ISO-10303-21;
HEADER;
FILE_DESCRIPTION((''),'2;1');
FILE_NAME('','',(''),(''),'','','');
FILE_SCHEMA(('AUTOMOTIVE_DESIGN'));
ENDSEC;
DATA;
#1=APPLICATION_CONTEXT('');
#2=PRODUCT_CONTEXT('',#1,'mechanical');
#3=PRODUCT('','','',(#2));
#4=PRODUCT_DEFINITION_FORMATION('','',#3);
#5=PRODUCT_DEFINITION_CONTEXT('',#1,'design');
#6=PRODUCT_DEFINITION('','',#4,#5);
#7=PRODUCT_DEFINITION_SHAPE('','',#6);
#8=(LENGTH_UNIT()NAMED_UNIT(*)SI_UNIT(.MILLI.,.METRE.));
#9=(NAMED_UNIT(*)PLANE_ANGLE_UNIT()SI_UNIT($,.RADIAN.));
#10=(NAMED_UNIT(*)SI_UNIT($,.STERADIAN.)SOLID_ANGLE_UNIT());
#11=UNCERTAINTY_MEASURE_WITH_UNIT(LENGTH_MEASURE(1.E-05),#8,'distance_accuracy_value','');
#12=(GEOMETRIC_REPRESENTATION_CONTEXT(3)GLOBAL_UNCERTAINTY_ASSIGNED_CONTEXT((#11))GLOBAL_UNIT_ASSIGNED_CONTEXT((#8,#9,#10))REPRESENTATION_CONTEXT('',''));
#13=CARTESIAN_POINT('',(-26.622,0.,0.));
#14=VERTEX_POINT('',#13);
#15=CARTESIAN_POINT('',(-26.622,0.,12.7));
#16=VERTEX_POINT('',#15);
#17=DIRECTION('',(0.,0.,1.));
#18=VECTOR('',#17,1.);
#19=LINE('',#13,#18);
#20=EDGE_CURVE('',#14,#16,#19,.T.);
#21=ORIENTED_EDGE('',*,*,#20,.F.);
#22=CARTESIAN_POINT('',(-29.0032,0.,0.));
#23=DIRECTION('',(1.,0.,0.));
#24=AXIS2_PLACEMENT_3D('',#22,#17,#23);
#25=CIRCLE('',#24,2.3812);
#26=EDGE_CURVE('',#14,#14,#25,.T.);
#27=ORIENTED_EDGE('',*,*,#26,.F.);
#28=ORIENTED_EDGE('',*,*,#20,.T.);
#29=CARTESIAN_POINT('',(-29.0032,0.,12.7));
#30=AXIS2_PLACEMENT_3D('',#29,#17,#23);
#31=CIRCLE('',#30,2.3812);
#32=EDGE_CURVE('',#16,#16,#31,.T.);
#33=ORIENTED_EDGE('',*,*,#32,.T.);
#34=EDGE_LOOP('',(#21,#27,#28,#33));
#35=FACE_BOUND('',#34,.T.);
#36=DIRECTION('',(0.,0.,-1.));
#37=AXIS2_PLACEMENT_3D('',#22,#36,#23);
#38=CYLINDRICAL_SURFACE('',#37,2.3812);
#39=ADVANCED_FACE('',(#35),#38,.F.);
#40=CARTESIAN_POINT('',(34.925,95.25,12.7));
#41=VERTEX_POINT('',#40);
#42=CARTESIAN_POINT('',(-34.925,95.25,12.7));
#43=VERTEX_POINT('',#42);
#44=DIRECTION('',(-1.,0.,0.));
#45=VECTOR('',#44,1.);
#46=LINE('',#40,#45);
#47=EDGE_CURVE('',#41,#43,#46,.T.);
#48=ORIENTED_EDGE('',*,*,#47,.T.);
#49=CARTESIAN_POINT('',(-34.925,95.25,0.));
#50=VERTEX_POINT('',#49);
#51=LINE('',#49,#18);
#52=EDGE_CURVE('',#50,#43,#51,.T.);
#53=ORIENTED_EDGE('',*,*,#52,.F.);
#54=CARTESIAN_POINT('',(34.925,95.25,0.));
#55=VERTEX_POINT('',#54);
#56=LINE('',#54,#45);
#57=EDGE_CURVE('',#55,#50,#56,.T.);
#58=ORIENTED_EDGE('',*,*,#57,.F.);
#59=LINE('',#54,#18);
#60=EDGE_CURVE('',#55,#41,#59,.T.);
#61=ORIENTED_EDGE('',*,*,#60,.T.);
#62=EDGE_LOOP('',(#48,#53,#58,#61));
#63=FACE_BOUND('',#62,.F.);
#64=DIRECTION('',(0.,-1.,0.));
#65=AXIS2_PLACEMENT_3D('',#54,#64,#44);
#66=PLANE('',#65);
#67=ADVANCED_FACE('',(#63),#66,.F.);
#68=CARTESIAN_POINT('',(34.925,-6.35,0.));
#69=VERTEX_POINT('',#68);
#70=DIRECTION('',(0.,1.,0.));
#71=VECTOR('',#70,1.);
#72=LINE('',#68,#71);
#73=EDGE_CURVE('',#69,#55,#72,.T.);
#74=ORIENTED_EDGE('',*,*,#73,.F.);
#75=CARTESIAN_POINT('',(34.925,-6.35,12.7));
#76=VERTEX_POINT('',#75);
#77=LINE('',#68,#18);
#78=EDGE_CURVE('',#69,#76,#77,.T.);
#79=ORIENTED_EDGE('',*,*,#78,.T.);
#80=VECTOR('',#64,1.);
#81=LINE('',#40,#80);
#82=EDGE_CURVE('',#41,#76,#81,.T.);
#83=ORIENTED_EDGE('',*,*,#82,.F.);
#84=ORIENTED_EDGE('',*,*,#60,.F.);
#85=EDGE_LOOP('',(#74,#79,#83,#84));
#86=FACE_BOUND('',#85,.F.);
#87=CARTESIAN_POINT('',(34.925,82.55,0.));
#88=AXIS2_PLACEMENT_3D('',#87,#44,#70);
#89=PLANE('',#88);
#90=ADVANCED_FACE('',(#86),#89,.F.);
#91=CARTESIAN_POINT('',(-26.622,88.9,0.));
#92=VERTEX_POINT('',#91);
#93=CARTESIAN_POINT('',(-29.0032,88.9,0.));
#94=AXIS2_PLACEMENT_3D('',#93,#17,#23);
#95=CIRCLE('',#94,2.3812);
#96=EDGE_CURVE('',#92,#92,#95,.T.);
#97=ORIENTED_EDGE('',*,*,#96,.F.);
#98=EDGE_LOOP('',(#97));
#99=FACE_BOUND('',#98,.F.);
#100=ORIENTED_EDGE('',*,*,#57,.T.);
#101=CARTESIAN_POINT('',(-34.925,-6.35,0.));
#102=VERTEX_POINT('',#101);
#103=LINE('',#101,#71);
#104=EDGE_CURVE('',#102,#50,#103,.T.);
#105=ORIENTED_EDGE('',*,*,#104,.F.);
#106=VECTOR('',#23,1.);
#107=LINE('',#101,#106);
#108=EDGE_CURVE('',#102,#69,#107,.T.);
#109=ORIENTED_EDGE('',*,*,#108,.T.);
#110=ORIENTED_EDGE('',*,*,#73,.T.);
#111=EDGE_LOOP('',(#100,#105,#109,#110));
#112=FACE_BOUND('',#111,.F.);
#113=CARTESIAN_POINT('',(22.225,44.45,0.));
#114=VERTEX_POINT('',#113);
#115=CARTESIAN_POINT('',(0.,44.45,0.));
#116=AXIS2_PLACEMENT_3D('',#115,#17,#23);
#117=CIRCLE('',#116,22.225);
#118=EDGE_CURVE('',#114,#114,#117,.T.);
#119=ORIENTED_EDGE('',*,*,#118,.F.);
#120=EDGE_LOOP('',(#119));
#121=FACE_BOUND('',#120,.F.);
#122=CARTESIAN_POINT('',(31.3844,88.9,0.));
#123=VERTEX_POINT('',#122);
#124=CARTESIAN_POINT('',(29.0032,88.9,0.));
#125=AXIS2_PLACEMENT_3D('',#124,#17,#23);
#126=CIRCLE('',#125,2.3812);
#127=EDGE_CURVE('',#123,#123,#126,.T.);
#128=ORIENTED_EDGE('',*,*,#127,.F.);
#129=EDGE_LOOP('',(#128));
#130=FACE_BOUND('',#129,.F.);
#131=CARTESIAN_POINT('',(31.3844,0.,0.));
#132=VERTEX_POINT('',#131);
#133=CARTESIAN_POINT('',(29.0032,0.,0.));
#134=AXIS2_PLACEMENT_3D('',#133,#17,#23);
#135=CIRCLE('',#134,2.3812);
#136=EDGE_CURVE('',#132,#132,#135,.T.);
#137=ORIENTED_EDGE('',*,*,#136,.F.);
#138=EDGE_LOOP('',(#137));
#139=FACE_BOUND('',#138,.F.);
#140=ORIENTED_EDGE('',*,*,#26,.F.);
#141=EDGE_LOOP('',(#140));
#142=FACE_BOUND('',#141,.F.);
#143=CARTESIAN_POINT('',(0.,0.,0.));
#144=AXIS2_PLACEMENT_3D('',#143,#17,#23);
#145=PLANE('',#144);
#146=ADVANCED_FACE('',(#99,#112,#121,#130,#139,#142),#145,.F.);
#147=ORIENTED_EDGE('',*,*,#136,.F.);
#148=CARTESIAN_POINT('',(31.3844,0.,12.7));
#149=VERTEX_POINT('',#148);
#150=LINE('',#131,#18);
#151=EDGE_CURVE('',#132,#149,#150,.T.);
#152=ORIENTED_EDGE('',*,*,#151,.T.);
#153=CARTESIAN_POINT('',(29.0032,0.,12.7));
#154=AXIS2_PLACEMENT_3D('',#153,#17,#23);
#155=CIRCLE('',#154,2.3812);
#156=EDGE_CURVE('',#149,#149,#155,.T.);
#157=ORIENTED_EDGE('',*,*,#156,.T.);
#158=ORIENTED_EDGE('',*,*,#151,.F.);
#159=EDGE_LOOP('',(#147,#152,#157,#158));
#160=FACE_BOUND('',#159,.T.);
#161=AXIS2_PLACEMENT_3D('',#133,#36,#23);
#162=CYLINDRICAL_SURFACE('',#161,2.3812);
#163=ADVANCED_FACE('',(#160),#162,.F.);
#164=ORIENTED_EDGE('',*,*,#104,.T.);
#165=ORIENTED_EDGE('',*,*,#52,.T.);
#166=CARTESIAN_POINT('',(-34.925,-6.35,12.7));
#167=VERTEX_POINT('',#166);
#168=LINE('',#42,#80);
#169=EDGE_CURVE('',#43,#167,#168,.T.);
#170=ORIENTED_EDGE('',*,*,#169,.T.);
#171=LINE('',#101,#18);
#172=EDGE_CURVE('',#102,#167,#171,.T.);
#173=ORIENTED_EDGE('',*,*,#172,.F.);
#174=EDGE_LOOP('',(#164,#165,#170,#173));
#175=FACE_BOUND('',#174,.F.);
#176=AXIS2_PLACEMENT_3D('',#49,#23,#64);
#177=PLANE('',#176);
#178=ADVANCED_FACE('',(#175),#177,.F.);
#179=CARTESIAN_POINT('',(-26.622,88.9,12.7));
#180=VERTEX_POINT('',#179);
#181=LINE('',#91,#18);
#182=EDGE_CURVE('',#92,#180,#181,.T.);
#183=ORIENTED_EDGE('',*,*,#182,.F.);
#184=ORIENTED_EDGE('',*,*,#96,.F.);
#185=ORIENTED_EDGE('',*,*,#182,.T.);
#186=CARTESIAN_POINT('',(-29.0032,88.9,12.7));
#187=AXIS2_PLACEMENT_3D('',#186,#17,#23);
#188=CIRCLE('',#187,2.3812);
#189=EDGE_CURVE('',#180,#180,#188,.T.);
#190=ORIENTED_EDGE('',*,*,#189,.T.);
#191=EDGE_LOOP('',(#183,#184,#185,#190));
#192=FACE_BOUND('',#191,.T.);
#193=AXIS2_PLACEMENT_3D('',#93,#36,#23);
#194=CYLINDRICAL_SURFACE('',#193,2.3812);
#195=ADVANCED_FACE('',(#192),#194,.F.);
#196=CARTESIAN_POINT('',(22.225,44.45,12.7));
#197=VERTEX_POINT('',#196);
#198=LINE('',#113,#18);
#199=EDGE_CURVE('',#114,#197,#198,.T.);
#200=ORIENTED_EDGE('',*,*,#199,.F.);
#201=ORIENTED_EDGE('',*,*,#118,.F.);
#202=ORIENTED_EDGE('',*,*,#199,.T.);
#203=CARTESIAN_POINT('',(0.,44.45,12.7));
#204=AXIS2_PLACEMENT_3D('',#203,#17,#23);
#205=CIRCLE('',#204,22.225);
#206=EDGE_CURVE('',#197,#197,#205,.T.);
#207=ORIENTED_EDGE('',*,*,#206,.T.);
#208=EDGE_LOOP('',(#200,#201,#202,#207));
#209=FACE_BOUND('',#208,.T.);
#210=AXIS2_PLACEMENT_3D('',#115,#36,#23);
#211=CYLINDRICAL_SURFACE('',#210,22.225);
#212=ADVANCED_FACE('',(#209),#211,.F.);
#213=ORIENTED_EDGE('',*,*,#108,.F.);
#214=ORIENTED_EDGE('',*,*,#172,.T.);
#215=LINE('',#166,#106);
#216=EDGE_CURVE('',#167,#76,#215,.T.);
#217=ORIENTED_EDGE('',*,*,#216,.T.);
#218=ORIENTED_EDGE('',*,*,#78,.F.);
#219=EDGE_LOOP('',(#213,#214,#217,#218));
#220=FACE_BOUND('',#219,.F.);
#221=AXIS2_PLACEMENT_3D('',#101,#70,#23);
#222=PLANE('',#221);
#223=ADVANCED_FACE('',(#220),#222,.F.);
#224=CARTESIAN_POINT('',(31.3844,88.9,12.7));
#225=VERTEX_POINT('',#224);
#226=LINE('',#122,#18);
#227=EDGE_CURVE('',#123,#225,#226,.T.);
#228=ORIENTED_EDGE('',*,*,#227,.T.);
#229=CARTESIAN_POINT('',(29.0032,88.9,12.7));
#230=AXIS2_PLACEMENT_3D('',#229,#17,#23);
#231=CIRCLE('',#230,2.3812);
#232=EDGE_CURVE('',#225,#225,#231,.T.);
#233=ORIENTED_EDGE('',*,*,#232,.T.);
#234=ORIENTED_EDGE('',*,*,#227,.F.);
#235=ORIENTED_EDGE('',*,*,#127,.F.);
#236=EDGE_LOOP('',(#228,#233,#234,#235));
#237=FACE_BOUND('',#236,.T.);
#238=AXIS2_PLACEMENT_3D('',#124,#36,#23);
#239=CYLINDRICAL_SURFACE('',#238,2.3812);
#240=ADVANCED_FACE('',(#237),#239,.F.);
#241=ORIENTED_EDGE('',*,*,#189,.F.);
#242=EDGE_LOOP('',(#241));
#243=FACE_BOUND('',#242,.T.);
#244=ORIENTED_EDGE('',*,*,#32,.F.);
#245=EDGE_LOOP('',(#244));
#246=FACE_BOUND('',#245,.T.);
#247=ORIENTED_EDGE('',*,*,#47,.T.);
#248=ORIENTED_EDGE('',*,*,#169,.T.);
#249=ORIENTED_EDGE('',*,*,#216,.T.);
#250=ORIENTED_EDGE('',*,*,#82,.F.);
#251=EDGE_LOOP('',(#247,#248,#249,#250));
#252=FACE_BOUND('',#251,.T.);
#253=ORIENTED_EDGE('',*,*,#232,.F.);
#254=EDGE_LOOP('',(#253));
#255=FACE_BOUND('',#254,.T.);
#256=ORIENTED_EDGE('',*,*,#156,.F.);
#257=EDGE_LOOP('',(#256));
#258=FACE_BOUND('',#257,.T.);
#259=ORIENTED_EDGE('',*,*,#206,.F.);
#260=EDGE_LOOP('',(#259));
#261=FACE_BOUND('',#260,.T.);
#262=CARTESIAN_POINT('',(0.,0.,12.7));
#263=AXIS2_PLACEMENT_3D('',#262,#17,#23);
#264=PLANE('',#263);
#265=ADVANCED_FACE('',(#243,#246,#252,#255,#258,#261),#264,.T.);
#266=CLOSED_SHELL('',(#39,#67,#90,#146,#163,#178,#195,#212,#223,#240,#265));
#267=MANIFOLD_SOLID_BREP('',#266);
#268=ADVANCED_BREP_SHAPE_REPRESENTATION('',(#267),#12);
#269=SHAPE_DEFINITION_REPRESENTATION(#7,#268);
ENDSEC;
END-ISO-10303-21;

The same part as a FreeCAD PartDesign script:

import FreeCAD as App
import Part
import Sketcher

V = App.Vector
Q = App.Units.Quantity

doc = App.newDocument("Part")
body = doc.addObject("PartDesign::Body", "Body")

sketch1 = body.newObject("Sketcher::SketchObject", "Sketch")
sketch1.AttachmentSupport = (doc.getObject("XY_Plane"), [""])
sketch1.MapMode = "FlatFace"
sketch1.addGeometry([
    Part.LineSegment(V(34.925, 95.25, 0), V(-34.925, 95.25, 0)),
    Part.LineSegment(V(-34.925, 95.25, 0), V(-34.925, -6.35, 0)),
    Part.LineSegment(V(-34.925, -6.35, 0), V(34.925, -6.35, 0)),
    Part.LineSegment(V(34.925, -6.35, 0), V(34.925, 95.25, 0)),
    Part.Circle(V(-29.0032, 88.9, 0), V(0, 0, 1), 2.3812),
    Part.Circle(V(29.0032, 88.9, 0), V(0, 0, 1), 2.3812),
    Part.Circle(V(0, 44.45, 0), V(0, 0, 1), 22.225),
    Part.Circle(V(29.0032, 0, 0), V(0, 0, 1), 2.3812),
    Part.Circle(V(-29.0032, 0, 0), V(0, 0, 1), 2.3812),
], False)
sketch1.addConstraint([
    Sketcher.Constraint("Coincident", 0, 2, 1, 1),
    Sketcher.Constraint("Coincident", 1, 2, 2, 1),
    Sketcher.Constraint("Coincident", 2, 2, 3, 1),
    Sketcher.Constraint("Coincident", 3, 2, 0, 1),
    Sketcher.Constraint("Horizontal", 0),
    Sketcher.Constraint("Vertical", 1),
    Sketcher.Constraint("Horizontal", 2),
    Sketcher.Constraint("Vertical", 3),
    Sketcher.Constraint("Equal", 4, 5),
    Sketcher.Constraint("Equal", 5, 7),
    Sketcher.Constraint("Equal", 7, 8),
    Sketcher.Constraint("Symmetric", 7, 3, 8, 3, -1, 1),
    Sketcher.Constraint("Symmetric", 4, 3, 5, 3, -2),
    Sketcher.Constraint("PointOnObject", 6, 3, -2),
    Sketcher.Constraint("PointOnObject", 7, 3, -1),
    Sketcher.Constraint("Vertical", 5, 3, 7, 3),
    Sketcher.Constraint("Diameter", 6, Q("1.75 in")),
    Sketcher.Constraint("DistanceY", 1, 2, 1, 1, Q("4 in")),
    Sketcher.Constraint("DistanceY", -1, 1, 6, 3, Q("1.75 in")),
    Sketcher.Constraint("DistanceY", 6, 3, 4, 3, Q("1.75 in")),
    Sketcher.Constraint("Diameter", 4, Q("0.1875 in")),
    Sketcher.Constraint("DistanceY", 6, 3, 0, 2, Q("2 in")),
    Sketcher.Constraint("DistanceX", 0, 2, 0, 1, Q("2.75 in")),
    Sketcher.Constraint("DistanceX", 0, 2, -1, 1, Q("1.375 in")),
    Sketcher.Constraint("DistanceX", 4, 3, -1, 1, Q("29.0032 mm")),
])
pad1 = body.newObject("PartDesign::Pad", "Pad")
pad1.Profile = sketch1
pad1.Length = Q("0.5 in")

doc.recompute()
